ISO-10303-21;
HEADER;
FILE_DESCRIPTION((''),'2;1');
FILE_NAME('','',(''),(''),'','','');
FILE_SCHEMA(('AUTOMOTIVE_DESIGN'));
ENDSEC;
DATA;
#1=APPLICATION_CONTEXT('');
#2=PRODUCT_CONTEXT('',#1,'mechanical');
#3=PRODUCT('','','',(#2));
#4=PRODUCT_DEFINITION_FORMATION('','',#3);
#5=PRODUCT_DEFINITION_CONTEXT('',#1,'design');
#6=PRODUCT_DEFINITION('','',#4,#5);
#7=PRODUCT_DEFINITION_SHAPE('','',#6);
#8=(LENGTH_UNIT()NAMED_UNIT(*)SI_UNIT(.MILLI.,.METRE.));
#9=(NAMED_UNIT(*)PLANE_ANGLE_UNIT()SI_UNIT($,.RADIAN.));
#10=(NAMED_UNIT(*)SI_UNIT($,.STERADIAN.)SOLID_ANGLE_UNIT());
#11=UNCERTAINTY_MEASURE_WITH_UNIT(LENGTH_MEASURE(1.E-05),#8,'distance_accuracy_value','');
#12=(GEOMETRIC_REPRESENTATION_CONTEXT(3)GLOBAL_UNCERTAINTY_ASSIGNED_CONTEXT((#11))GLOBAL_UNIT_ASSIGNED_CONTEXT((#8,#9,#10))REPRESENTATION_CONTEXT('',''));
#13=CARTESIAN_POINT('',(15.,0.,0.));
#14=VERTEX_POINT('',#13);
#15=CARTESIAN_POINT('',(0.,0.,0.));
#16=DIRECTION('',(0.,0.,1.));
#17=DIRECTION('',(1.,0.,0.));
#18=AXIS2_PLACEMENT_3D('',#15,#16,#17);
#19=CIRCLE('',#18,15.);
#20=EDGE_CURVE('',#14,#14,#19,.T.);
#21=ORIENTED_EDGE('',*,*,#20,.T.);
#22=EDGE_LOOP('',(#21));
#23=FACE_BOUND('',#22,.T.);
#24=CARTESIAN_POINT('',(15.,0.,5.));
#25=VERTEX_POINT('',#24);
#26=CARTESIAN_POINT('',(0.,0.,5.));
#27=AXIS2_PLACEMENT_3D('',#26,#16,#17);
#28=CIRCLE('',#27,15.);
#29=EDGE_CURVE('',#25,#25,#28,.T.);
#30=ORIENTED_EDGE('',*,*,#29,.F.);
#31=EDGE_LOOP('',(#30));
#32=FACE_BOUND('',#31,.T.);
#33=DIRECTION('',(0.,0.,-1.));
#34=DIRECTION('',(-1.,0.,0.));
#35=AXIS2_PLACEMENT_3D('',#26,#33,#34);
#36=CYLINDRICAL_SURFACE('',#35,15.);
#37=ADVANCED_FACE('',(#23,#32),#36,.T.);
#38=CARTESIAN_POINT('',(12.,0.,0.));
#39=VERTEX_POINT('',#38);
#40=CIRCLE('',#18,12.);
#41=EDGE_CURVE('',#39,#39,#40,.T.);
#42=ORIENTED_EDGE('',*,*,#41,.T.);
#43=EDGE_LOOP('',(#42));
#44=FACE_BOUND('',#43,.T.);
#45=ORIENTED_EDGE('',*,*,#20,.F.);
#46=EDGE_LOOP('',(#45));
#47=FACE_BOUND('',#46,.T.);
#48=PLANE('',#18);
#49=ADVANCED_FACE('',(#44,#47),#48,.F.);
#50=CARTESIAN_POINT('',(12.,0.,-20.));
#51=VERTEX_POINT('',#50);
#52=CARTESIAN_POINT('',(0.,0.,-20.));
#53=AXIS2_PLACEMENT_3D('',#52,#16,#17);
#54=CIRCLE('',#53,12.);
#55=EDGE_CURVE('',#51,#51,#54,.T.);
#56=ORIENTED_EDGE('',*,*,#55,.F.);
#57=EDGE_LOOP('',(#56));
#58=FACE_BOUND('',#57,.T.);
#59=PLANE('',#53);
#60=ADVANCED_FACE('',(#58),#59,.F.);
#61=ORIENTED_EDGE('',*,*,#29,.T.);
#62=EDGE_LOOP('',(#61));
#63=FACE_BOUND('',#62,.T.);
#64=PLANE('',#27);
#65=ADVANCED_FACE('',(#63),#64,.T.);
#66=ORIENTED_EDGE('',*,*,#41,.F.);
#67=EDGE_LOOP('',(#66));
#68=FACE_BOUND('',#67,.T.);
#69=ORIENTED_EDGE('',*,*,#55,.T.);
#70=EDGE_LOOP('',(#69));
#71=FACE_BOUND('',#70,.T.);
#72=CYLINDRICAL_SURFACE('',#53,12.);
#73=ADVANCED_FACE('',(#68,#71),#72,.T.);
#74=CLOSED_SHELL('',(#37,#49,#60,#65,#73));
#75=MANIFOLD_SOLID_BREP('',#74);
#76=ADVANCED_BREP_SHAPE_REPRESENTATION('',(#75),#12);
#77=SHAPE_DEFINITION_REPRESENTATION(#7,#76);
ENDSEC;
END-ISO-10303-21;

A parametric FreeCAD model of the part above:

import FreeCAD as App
import Part
import Sketcher
from FreeCAD import Vector
Q = App.Units.Quantity

doc = App.newDocument("Part")
params = doc.addObject("Spreadsheet::Sheet", "Params")
for row, (alias, value) in enumerate([
    ("sketch1_diameter", "30 mm"),
    ("sketch1_diameter2", "24 mm"),
    ("pad1_length", "5 mm"),
    ("sketch2_diameter", "24 mm"),
    ("pad2_length", "25 mm"),
], start=1):
    params.set(f"A{row}", alias)
    params.set(f"B{row}", "=" + value)
    params.setAlias(f"B{row}", alias)

body = doc.addObject("PartDesign::Body", "Body")

# Sketch on XY plane
sketch1 = body.newObject("Sketcher::SketchObject", "Sketch")
sketch1.AttachmentSupport = (doc.getObject("XY_Plane"), [""])
sketch1.MapMode = "FlatFace"
sketch1.addGeometry([
    Part.Circle(Vector(0, 0, 0), Vector(0, 0, 1), 15),
    Part.Circle(Vector(0, 0, 0), Vector(0, 0, 1), 12),
], False)
sketch1.addConstraint([
    Sketcher.Constraint("Coincident", 0, 3, -1, 1),
    Sketcher.Constraint("Coincident", 1, 3, -1, 1),
    Sketcher.Constraint("Diameter", 0, Q("30 mm")),
    Sketcher.Constraint("Diameter", 1, Q("24 mm")),
])
sketch1.setExpression("Constraints[2]", "Params.sketch1_diameter")
sketch1.setExpression("Constraints[3]", "Params.sketch1_diameter2")
pad1 = body.newObject("PartDesign::Pad", "Pad")
pad1.Profile = sketch1
pad1.setExpression("Length", "Params.pad1_length")

# Sketch on XY plane
sketch2 = body.newObject("Sketcher::SketchObject", "Sketch001")
sketch2.AttachmentSupport = (doc.getObject("XY_Plane"), [""])
sketch2.MapMode = "FlatFace"
sketch2.AttachmentOffset = App.Placement(Vector(0, 0, -20), App.Rotation())
sketch2.addGeometry(Part.Circle(Vector(0, 0, 0), Vector(0, 0, 1), 12), False)
sketch2.addConstraint([
    Sketcher.Constraint("Coincident", 0, 3, -1, 1),
    Sketcher.Constraint("Diameter", 0, Q("24 mm")),
])
sketch2.setExpression("Constraints[1]", "Params.sketch2_diameter")
pad2 = body.newObject("PartDesign::Pad", "Pad001")
pad2.Profile = sketch2
pad2.setExpression("Length", "Params.pad2_length")

doc.recompute()
